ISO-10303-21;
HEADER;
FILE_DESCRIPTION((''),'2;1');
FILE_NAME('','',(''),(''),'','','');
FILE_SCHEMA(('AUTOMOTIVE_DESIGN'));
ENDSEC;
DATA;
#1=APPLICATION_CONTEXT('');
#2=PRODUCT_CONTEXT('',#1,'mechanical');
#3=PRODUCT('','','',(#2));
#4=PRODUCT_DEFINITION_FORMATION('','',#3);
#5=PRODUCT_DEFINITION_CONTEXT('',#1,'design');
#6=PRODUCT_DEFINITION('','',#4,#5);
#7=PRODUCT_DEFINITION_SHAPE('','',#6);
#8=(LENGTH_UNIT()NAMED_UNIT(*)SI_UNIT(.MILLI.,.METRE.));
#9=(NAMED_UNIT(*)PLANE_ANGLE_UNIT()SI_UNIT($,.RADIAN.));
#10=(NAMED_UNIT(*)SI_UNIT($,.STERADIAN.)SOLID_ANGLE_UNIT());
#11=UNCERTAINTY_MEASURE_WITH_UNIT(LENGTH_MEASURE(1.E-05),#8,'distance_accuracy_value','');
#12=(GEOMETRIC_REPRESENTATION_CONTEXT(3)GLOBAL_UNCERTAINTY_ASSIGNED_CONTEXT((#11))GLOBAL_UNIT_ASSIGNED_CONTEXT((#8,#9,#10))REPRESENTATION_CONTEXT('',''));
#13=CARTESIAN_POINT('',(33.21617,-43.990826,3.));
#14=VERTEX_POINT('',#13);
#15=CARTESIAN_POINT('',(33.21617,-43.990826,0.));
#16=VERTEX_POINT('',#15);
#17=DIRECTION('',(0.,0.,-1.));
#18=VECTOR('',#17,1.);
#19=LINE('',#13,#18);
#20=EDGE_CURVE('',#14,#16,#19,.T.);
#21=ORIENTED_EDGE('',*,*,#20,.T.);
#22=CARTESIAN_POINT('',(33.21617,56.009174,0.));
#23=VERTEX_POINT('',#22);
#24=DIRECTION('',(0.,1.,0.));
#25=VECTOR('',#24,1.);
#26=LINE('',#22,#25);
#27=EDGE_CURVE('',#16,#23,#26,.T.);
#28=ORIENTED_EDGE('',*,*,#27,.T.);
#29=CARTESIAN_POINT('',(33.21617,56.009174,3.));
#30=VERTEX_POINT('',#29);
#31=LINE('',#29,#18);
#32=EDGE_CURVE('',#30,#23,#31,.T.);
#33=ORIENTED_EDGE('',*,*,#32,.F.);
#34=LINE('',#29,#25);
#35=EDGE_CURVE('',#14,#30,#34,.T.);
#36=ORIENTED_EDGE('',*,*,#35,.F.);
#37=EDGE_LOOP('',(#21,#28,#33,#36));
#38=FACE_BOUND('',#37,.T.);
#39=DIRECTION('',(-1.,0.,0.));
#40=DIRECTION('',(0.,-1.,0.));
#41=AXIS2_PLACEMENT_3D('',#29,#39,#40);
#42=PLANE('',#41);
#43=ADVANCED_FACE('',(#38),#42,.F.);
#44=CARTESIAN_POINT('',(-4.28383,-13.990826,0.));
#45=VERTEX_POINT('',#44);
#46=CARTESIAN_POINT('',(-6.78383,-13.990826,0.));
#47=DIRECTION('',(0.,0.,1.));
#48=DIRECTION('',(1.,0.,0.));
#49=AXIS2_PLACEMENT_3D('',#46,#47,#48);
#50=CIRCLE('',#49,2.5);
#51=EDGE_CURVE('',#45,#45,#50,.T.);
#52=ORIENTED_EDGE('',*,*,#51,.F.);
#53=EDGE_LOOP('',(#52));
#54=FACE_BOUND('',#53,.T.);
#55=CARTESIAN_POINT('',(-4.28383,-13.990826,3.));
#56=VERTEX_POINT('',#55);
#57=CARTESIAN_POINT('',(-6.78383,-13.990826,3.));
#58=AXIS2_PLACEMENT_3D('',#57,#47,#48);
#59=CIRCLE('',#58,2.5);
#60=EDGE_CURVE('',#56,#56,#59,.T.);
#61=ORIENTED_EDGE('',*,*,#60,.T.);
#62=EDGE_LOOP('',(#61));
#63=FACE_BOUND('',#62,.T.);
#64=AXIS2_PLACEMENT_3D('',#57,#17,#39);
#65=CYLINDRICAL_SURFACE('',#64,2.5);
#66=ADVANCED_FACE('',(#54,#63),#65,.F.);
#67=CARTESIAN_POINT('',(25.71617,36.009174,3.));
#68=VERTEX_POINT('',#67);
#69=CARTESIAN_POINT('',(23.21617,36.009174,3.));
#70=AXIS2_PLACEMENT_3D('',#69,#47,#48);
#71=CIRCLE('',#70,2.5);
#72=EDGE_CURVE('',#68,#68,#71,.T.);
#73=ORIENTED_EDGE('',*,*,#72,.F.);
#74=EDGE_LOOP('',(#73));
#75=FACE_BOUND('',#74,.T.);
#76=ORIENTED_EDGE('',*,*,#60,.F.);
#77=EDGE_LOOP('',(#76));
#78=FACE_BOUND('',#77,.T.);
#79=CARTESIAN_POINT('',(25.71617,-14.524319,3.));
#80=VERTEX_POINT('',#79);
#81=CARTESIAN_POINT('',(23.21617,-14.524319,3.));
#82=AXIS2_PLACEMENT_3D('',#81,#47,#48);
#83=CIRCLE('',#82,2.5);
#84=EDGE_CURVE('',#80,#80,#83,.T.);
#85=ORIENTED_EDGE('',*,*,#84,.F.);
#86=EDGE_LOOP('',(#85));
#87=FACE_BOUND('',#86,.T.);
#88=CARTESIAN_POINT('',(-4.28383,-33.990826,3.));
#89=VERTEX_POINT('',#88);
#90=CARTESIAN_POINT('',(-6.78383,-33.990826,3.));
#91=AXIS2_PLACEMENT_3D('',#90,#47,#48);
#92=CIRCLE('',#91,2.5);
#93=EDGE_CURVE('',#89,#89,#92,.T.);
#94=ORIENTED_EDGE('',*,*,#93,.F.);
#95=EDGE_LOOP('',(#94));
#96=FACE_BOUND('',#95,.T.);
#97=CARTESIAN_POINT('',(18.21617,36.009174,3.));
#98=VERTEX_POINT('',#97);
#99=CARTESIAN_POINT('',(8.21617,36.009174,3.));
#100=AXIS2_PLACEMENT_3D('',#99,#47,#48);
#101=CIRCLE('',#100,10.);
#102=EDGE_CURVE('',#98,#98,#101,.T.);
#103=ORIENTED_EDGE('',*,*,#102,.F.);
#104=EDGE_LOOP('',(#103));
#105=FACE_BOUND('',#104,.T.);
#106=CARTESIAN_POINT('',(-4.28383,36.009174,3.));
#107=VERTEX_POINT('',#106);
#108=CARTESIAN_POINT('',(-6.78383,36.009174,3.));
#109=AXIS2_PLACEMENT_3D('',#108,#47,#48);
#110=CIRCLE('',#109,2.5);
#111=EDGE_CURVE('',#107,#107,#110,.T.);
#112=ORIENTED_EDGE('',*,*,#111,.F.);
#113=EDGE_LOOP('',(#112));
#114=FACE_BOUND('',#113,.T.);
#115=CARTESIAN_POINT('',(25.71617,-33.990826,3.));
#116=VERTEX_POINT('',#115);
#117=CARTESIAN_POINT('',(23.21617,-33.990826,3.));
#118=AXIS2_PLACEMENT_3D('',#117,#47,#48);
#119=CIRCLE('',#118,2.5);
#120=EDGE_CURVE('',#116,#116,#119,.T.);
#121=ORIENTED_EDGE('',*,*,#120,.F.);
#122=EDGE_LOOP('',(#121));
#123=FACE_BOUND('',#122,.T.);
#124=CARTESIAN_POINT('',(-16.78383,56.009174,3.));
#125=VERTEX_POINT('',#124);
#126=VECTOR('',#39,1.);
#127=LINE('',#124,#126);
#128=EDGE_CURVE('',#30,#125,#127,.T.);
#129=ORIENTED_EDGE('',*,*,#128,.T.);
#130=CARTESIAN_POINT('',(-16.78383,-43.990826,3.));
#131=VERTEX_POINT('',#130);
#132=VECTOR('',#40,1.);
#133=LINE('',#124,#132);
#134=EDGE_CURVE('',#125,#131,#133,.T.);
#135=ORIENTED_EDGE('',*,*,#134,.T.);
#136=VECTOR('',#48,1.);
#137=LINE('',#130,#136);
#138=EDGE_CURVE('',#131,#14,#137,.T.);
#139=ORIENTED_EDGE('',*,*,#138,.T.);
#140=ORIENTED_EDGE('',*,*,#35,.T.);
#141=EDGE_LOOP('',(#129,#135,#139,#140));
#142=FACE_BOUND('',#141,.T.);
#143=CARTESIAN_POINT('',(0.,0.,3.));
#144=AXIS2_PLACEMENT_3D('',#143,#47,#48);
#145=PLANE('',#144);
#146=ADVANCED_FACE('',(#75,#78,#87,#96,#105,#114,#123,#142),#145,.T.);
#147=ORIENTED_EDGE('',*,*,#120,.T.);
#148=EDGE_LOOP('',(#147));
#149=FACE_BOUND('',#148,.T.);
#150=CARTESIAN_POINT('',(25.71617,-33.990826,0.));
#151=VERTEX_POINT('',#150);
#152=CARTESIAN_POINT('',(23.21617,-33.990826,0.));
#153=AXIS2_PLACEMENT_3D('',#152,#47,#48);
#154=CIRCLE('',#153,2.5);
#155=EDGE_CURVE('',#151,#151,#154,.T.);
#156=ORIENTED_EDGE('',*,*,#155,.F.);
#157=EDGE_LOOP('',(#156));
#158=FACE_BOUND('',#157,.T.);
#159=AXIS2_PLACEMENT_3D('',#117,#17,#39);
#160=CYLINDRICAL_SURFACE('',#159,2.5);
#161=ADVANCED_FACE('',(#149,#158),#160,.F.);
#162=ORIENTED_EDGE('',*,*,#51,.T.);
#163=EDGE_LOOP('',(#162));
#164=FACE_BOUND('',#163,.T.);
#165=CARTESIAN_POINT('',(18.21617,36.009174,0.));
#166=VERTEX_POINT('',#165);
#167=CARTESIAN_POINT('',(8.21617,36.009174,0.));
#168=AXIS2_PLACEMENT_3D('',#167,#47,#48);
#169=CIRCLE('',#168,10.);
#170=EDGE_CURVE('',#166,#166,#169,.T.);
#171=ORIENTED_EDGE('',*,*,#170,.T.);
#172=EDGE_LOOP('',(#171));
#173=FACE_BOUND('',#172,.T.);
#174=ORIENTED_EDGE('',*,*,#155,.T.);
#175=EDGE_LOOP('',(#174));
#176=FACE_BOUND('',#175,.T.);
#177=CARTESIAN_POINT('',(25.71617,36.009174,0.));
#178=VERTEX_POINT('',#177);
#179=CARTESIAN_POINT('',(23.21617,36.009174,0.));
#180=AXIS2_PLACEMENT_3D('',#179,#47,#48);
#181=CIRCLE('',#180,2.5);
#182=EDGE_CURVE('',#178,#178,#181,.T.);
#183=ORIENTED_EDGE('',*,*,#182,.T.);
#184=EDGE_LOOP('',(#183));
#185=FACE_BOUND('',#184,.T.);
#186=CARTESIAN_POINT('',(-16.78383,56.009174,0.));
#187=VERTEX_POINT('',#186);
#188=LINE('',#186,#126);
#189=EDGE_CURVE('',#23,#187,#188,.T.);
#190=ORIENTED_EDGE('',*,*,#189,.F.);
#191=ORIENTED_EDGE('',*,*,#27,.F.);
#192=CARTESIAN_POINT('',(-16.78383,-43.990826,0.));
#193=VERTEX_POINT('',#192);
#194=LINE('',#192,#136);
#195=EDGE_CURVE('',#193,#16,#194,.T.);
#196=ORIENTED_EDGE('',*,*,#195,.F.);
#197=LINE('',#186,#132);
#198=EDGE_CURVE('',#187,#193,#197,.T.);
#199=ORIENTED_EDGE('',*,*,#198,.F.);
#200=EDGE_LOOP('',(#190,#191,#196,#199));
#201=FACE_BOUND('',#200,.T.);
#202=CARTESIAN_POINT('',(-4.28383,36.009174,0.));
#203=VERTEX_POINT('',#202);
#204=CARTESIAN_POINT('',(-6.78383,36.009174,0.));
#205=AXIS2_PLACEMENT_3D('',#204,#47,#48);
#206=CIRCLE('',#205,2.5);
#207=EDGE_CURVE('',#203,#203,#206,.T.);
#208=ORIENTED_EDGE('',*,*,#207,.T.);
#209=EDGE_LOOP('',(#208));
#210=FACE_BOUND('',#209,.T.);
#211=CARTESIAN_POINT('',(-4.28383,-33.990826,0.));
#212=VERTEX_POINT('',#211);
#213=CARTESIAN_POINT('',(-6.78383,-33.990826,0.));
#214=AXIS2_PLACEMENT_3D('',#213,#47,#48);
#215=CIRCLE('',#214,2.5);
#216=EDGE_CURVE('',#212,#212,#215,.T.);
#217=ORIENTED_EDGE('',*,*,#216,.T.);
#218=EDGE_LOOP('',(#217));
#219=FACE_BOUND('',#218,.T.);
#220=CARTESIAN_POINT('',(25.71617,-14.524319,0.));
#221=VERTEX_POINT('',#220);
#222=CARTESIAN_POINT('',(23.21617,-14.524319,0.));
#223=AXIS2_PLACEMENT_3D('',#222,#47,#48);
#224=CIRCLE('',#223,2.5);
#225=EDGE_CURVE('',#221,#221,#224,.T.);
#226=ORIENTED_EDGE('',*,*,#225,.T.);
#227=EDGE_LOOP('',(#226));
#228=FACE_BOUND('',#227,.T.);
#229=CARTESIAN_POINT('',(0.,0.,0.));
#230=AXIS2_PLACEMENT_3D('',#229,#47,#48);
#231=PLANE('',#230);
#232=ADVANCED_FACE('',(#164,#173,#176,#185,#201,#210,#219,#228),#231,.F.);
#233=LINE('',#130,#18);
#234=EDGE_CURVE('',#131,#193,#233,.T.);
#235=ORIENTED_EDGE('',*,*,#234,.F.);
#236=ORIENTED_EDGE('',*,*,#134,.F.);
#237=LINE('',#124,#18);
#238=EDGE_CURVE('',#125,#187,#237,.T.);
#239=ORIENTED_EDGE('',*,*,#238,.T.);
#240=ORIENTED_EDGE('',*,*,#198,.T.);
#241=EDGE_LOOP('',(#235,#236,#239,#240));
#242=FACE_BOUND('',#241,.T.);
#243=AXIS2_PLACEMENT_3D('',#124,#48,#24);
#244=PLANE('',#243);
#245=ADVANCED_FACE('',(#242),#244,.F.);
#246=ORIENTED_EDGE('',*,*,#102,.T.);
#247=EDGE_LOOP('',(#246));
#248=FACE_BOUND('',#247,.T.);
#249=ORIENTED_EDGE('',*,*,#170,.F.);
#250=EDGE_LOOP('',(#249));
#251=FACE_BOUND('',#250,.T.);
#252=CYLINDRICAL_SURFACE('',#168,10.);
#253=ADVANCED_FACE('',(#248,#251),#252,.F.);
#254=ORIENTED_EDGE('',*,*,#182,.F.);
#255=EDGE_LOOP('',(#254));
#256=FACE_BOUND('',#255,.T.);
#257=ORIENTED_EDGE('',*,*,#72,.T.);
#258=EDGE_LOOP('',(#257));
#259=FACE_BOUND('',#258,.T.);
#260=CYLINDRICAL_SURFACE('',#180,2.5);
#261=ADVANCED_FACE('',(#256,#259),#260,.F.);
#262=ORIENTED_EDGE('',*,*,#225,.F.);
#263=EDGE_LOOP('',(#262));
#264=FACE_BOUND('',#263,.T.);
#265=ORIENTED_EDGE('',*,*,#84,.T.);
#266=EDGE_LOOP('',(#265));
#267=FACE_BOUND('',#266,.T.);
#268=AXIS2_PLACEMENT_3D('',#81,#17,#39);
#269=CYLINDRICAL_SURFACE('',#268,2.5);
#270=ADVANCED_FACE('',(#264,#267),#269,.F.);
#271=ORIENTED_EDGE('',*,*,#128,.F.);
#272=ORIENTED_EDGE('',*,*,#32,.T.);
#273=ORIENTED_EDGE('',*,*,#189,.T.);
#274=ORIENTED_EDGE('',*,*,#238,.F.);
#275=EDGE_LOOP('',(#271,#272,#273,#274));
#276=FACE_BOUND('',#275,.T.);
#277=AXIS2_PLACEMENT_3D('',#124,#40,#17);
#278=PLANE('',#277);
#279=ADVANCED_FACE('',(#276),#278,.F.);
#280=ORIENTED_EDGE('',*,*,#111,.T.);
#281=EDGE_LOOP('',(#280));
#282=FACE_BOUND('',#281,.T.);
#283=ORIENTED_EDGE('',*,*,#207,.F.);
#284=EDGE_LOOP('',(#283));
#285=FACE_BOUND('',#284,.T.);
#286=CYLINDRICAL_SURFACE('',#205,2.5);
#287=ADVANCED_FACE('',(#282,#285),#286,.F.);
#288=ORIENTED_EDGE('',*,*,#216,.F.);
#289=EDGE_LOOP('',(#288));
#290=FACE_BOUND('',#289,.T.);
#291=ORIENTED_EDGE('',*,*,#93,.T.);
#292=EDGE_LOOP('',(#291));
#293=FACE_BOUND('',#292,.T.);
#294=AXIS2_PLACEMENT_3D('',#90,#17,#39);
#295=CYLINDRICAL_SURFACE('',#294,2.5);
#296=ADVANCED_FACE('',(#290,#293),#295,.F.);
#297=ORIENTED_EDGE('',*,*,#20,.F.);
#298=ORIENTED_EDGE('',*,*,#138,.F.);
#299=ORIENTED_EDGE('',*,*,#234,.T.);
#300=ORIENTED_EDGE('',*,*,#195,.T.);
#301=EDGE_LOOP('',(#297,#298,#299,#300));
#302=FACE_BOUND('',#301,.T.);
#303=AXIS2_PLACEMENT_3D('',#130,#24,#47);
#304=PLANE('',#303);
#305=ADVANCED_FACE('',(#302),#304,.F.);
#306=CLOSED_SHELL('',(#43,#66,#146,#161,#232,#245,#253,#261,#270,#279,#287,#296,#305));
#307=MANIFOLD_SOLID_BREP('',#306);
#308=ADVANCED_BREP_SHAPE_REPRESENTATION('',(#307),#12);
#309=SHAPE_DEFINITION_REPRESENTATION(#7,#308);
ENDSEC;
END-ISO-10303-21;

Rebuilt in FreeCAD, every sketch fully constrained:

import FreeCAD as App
import Part
import Sketcher
Q = App.Units.Quantity

doc = App.newDocument("Part")
body = doc.addObject("PartDesign::Body", "Body")

# Sketch on XY plane
sketch1 = body.newObject("Sketcher::SketchObject", "Sketch")
sketch1.AttachmentSupport = (doc.getObject("XY_Plane"), [""])
sketch1.MapMode = "FlatFace"
sketch1.addGeometry(Part.LineSegment(App.Vector(-16.78383, 56.009174, 0), App.Vector(-16.78383, -43.990826, 0)), False)
sketch1.addGeometry(Part.LineSegment(App.Vector(-16.78383, -43.990826, 0), App.Vector(33.21617, -43.990826, 0)), False)
sketch1.addGeometry(Part.LineSegment(App.Vector(33.21617, -43.990826, 0), App.Vector(33.21617, 56.009174, 0)), False)
sketch1.addGeometry(Part.LineSegment(App.Vector(33.21617, 56.009174, 0), App.Vector(-16.78383, 56.009174, 0)), False)
sketch1.addGeometry(Part.Circle(App.Vector(-6.78383, -33.990826, 0), App.Vector(0, 0, 1), 2.5), False)
sketch1.addGeometry(Part.Circle(App.Vector(23.21617, -33.990826, 0), App.Vector(0, 0, 1), 2.5), False)
sketch1.addGeometry(Part.Circle(App.Vector(-6.78383, -13.990826, 0), App.Vector(0, 0, 1), 2.5), False)
sketch1.addGeometry(Part.Circle(App.Vector(23.21617, -14.524319, 0), App.Vector(0, 0, 1), 2.5), False)
sketch1.addConstraint(Sketcher.Constraint("Coincident", 0, 2, 1, 1))
sketch1.addConstraint(Sketcher.Constraint("Coincident", 1, 2, 2, 1))
sketch1.addConstraint(Sketcher.Constraint("Coincident", 2, 2, 3, 1))
sketch1.addConstraint(Sketcher.Constraint("Coincident", 3, 2, 0, 1))
sketch1.addConstraint(Sketcher.Constraint("Vertical", 0))
sketch1.addConstraint(Sketcher.Constraint("Horizontal", 1))
sketch1.addConstraint(Sketcher.Constraint("Vertical", 2))
sketch1.addConstraint(Sketcher.Constraint("Horizontal", 3))
sketch1.addConstraint(Sketcher.Constraint("Equal", 4, 5))
sketch1.addConstraint(Sketcher.Constraint("Equal", 5, 6))
sketch1.addConstraint(Sketcher.Constraint("Equal", 6, 7))
sketch1.addConstraint(Sketcher.Constraint("Horizontal", 4, 3, 5, 3))
sketch1.addConstraint(Sketcher.Constraint("Vertical", 4, 3, 6, 3))
sketch1.addConstraint(Sketcher.Constraint("Vertical", 5, 3, 7, 3))
sketch1.addConstraint(Sketcher.Constraint("Diameter", 4, Q("5 mm")))
sketch1.addConstraint(Sketcher.Constraint("DistanceX", 1, 1, 1, 2, Q("50 mm")))
sketch1.addConstraint(Sketcher.Constraint("DistanceY", 0, 2, 0, 1, Q("100 mm")))
sketch1.addConstraint(Sketcher.Constraint("DistanceX", 4, 3, 5, 3, Q("30 mm")))
sketch1.addConstraint(Sketcher.Constraint("DistanceY", 4, 3, 6, 3, Q("20 mm")))
sketch1.addConstraint(Sketcher.Constraint("DistanceX", 0, 2, 4, 3, Q("10 mm")))
sketch1.addConstraint(Sketcher.Constraint("DistanceY", 0, 2, 4, 3, Q("10 mm")))
sketch1.addConstraint(Sketcher.Constraint("DistanceX", 4, 3, -1, 1, Q("6.78383 mm")))
sketch1.addConstraint(Sketcher.Constraint("DistanceY", 7, 3, -1, 1, Q("14.524319 mm")))
sketch1.addConstraint(Sketcher.Constraint("DistanceY", 4, 3, -1, 1, Q("33.990826 mm")))
pad1 = body.newObject("PartDesign::Pad", "Pad")
pad1.Profile = sketch1
pad1.Length = 3

# Sketch on XY plane
sketch2 = body.newObject("Sketcher::SketchObject", "Sketch001")
sketch2.AttachmentSupport = (doc.getObject("XY_Plane"), [""])
sketch2.MapMode = "FlatFace"
sketch2.AttachmentOffset = App.Placement(App.Vector(0, 0, 3), App.Rotation())
sketch2.addGeometry(Part.Circle(App.Vector(8.21617, 36.009174, 0), App.Vector(0, 0, 1), 10), False)
sketch2.addGeometry(Part.Circle(App.Vector(-6.78383, 36.009174, 0), App.Vector(0, 0, 1), 2.5), False)
sketch2.addGeometry(Part.Circle(App.Vector(23.21617, 36.009174, 0), App.Vector(0, 0, 1), 2.5), False)
sketch2.addConstraint(Sketcher.Constraint("Equal", 1, 2))
sketch2.addConstraint(Sketcher.Constraint("Horizontal", 0, 3, 1, 3))
sketch2.addConstraint(Sketcher.Constraint("Horizontal", 1, 3, 2, 3))
sketch2.addConstraint(Sketcher.Constraint("Diameter", 0, Q("20 mm")))
sketch2.addConstraint(Sketcher.Constraint("Diameter", 1, Q("5 mm")))
sketch2.addConstraint(Sketcher.Constraint("DistanceX", 1, 3, 0, 3, Q("15 mm")))
sketch2.addConstraint(Sketcher.Constraint("DistanceX", 0, 3, 2, 3, Q("15 mm")))
sketch2.addConstraint(Sketcher.Constraint("DistanceX", -1, 1, 0, 3, Q("8.21617 mm")))
sketch2.addConstraint(Sketcher.Constraint("DistanceY", -1, 1, 0, 3, Q("36.009174 mm")))
pocket1 = body.newObject("PartDesign::Pocket", "Pocket")
pocket1.Profile = sketch2
pocket1.Length = 3

doc.recompute()
